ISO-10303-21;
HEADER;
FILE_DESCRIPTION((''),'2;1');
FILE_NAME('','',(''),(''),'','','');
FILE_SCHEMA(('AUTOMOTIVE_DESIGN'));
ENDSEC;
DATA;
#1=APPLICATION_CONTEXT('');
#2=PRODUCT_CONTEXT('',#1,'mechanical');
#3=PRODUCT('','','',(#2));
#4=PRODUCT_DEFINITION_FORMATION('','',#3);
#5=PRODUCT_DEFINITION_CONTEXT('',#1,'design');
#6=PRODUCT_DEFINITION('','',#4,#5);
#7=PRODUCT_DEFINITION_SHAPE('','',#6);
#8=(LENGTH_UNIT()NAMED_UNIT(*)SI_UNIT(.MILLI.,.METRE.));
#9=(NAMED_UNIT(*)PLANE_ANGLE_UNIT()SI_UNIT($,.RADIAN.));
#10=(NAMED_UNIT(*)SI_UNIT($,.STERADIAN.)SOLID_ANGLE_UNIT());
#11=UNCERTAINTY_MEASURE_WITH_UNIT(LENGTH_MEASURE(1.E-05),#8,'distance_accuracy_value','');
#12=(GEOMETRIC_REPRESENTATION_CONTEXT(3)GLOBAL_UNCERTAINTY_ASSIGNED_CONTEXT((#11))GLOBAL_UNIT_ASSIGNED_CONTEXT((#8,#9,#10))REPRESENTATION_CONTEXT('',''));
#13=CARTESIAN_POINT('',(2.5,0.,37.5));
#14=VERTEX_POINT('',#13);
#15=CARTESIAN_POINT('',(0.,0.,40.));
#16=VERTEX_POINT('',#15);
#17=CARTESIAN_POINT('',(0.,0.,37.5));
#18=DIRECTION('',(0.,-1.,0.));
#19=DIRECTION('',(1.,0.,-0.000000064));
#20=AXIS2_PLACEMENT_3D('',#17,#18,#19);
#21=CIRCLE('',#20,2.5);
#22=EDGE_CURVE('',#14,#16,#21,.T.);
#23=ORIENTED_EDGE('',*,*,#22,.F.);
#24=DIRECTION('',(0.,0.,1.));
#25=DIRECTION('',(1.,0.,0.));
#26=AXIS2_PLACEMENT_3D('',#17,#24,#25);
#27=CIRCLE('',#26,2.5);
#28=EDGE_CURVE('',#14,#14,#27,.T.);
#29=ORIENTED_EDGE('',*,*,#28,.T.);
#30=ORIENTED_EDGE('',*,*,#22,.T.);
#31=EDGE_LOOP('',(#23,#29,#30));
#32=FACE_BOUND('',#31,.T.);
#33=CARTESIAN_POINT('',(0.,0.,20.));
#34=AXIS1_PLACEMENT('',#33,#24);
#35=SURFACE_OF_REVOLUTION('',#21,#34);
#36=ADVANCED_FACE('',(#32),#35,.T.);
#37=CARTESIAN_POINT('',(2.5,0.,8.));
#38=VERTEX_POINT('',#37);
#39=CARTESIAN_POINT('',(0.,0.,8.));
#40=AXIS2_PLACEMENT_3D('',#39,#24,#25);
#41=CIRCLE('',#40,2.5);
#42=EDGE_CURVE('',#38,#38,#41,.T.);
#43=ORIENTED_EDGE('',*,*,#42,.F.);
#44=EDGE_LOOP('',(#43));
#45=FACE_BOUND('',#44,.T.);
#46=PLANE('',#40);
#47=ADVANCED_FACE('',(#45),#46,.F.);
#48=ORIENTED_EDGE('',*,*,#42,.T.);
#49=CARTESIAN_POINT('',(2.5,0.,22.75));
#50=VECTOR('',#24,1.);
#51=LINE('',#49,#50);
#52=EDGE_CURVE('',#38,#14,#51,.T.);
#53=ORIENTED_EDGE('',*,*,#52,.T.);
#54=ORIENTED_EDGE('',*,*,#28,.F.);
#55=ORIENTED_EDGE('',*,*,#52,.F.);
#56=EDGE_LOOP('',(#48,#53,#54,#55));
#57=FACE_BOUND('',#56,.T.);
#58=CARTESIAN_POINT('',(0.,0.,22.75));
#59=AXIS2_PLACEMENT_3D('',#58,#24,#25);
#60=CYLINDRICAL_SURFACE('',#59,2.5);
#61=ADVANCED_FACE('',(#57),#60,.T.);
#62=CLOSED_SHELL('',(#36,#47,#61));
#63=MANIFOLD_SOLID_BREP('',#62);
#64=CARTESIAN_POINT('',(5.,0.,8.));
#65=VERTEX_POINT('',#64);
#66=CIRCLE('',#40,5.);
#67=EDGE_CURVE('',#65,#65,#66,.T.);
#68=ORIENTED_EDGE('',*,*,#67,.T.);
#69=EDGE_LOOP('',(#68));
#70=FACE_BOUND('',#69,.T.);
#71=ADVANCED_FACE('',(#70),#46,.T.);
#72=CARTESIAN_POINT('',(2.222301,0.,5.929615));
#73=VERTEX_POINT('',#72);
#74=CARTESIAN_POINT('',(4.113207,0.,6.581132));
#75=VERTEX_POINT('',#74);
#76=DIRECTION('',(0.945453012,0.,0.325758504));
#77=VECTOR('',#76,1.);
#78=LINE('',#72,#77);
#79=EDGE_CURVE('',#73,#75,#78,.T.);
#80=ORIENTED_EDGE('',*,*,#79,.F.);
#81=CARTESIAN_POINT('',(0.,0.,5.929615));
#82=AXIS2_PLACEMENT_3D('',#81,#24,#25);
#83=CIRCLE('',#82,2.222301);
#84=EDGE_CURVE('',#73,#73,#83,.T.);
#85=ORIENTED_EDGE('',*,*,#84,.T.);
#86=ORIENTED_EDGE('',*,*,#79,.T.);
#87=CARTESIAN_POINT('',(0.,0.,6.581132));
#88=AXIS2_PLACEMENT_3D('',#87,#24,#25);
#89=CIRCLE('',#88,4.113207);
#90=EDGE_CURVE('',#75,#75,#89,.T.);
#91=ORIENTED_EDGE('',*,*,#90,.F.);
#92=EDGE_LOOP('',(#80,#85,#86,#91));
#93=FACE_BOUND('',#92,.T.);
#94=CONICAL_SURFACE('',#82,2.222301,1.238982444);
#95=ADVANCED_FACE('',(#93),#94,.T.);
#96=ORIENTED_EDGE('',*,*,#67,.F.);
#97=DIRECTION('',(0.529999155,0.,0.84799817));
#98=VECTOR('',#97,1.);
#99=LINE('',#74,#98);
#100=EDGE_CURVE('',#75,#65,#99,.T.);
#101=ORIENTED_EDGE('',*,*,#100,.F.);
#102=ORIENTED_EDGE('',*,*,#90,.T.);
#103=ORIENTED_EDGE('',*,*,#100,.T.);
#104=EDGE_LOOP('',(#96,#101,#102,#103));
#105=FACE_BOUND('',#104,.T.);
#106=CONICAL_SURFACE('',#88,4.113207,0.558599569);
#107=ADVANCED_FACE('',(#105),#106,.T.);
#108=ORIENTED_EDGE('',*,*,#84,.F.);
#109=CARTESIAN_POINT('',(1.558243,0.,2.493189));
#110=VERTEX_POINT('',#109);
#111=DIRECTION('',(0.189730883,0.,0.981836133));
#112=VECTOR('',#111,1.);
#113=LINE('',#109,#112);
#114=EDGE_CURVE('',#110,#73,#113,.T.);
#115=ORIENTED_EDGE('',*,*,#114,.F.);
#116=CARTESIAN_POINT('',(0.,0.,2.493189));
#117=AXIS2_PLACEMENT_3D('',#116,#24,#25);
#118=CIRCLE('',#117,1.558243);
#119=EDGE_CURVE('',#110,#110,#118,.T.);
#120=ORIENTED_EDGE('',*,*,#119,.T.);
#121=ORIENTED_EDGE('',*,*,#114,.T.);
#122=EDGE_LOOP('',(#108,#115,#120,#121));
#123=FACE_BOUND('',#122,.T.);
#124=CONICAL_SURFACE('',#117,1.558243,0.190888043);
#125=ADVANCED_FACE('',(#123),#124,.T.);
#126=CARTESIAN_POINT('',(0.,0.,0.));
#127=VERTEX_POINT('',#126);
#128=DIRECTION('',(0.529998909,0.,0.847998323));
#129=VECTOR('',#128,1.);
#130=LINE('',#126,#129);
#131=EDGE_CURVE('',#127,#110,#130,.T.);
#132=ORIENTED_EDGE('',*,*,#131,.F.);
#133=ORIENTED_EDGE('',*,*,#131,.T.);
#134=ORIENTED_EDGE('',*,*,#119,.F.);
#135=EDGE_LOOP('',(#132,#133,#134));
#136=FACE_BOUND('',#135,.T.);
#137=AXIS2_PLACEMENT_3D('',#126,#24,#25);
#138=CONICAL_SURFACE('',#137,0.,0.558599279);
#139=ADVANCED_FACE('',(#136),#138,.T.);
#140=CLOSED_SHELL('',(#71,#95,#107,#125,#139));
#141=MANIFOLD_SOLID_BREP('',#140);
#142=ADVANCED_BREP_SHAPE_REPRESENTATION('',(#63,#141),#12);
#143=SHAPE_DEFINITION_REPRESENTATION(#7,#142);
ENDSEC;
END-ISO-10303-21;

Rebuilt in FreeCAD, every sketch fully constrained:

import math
import FreeCAD as App
import Part
import Sketcher
from FreeCAD import Vector

doc = App.newDocument("Part")
body = doc.addObject("PartDesign::Body", "Body")

# Sketch on XZ plane
sketch1 = body.newObject("Sketcher::SketchObject", "Sketch")
sketch1.AttachmentSupport = (doc.getObject("XZ_Plane"), [""])
sketch1.MapMode = "FlatFace"
sketch1.addGeometry(Part.LineSegment(Vector(0, 8, 0), Vector(2.5, 8, 0)), False)
sketch1.addGeometry(Part.LineSegment(Vector(2.5, 8, 0), Vector(2.5, 37.5, 0)), False)
sketch1.addGeometry(Part.ArcOfCircle(Part.Circle(Vector(0, 37.5, 0), Vector(0, 0, 1), 2.5), math.radians(0), math.radians(90)), False)
sketch1.addGeometry(Part.LineSegment(Vector(0, 40, 0), Vector(0, 8, 0)), False)
sketch1.addConstraint(Sketcher.Constraint("Coincident", 0, 2, 1, 1))
sketch1.addConstraint(Sketcher.Constraint("Tangent", 1, 2, 2, 1))
sketch1.addConstraint(Sketcher.Constraint("Coincident", 2, 2, 3, 1))
sketch1.addConstraint(Sketcher.Constraint("Coincident", 3, 2, 0, 1))
sketch1.addConstraint(Sketcher.Constraint("Horizontal", 0))
sketch1.addConstraint(Sketcher.Constraint("Vertical", 1))
sketch1.addConstraint(Sketcher.Constraint("Vertical", 3))
sketch1.addConstraint(Sketcher.Constraint("PointOnObject", 2, 3, -2))
sketch1.addConstraint(Sketcher.Constraint("PointOnObject", 2, 2, -2))
sketch1.addConstraint(Sketcher.Constraint("Radius", 2, 2.5))
sketch1.addConstraint(Sketcher.Constraint("DistanceY", 3, 2, 3, 1, 32.0))
sketch1.addConstraint(Sketcher.Constraint("DistanceY", -1, 1, 0, 2, 8.0))
revolution = body.newObject("PartDesign::Revolution", "Revolution")
revolution.Profile = sketch1
revolution.ReferenceAxis = (sketch1, ["V_Axis"])
revolution.Angle = 360
body2 = doc.addObject("PartDesign::Body", "Body001")

# Sketch on XZ plane
sketch2 = body2.newObject("Sketcher::SketchObject", "Sketch001")
sketch2.AttachmentSupport = (doc.getObject("XZ_Plane001"), [""])
sketch2.MapMode = "FlatFace"
sketch2.addGeometry(Part.LineSegment(Vector(0, 8, 0), Vector(0, 0, 0)), False)
sketch2.addGeometry(Part.LineSegment(Vector(0, 0, 0), Vector(1.6, 2.5, 0)), False)
sketch2.addGeometry(Part.LineSegment(Vector(1.6, 2.5, 0), Vector(2.2, 5.9, 0)), False)
sketch2.addGeometry(Part.LineSegment(Vector(2.2, 5.9, 0), Vector(4.1, 6.6, 0)), False)
sketch2.addGeometry(Part.LineSegment(Vector(4.1, 6.6, 0), Vector(5, 8, 0)), False)
sketch2.addGeometry(Part.LineSegment(Vector(5, 8, 0), Vector(0, 8, 0)), False)
sketch2.addConstraint(Sketcher.Constraint("Coincident", 0, 2, 1, 1))
sketch2.addConstraint(Sketcher.Constraint("Coincident", 1, 2, 2, 1))
sketch2.addConstraint(Sketcher.Constraint("Coincident", 2, 2, 3, 1))
sketch2.addConstraint(Sketcher.Constraint("Coincident", 3, 2, 4, 1))
sketch2.addConstraint(Sketcher.Constraint("Coincident", 4, 2, 5, 1))
sketch2.addConstraint(Sketcher.Constraint("Coincident", 5, 2, 0, 1))
sketch2.addConstraint(Sketcher.Constraint("Vertical", 0))
sketch2.addConstraint(Sketcher.Constraint("Horizontal", 5))
sketch2.addConstraint(Sketcher.Constraint("Coincident", 0, 2, -1, 1))
sketch2.addConstraint(Sketcher.Constraint("Parallel", 1, 4))
sketch2.addConstraint(Sketcher.Constraint("DistanceX", 5, 2, 5, 1, 5.0))
sketch2.addConstraint(Sketcher.Constraint("DistanceY", 0, 2, 0, 1, 8.0))
sketch2.addConstraint(Sketcher.Constraint("Distance", 3, 2.0))
sketch2.addConstraint(Sketcher.Constraint("Distance", 2, 3.5))
sketch2.addConstraint(Sketcher.Constraint("DistanceX", -1, 1, 2, 2, 2.222301))
sketch2.addConstraint(Sketcher.Constraint("DistanceY", -1, 1, 1, 2, 2.493189))
sketch2.addConstraint(Sketcher.Constraint("Distance", 1, 2.940087))
revolution2 = body2.newObject("PartDesign::Revolution", "Revolution001")
revolution2.Profile = sketch2
revolution2.ReferenceAxis = (sketch2, ["V_Axis"])
revolution2.Angle = 360

doc.recompute()
